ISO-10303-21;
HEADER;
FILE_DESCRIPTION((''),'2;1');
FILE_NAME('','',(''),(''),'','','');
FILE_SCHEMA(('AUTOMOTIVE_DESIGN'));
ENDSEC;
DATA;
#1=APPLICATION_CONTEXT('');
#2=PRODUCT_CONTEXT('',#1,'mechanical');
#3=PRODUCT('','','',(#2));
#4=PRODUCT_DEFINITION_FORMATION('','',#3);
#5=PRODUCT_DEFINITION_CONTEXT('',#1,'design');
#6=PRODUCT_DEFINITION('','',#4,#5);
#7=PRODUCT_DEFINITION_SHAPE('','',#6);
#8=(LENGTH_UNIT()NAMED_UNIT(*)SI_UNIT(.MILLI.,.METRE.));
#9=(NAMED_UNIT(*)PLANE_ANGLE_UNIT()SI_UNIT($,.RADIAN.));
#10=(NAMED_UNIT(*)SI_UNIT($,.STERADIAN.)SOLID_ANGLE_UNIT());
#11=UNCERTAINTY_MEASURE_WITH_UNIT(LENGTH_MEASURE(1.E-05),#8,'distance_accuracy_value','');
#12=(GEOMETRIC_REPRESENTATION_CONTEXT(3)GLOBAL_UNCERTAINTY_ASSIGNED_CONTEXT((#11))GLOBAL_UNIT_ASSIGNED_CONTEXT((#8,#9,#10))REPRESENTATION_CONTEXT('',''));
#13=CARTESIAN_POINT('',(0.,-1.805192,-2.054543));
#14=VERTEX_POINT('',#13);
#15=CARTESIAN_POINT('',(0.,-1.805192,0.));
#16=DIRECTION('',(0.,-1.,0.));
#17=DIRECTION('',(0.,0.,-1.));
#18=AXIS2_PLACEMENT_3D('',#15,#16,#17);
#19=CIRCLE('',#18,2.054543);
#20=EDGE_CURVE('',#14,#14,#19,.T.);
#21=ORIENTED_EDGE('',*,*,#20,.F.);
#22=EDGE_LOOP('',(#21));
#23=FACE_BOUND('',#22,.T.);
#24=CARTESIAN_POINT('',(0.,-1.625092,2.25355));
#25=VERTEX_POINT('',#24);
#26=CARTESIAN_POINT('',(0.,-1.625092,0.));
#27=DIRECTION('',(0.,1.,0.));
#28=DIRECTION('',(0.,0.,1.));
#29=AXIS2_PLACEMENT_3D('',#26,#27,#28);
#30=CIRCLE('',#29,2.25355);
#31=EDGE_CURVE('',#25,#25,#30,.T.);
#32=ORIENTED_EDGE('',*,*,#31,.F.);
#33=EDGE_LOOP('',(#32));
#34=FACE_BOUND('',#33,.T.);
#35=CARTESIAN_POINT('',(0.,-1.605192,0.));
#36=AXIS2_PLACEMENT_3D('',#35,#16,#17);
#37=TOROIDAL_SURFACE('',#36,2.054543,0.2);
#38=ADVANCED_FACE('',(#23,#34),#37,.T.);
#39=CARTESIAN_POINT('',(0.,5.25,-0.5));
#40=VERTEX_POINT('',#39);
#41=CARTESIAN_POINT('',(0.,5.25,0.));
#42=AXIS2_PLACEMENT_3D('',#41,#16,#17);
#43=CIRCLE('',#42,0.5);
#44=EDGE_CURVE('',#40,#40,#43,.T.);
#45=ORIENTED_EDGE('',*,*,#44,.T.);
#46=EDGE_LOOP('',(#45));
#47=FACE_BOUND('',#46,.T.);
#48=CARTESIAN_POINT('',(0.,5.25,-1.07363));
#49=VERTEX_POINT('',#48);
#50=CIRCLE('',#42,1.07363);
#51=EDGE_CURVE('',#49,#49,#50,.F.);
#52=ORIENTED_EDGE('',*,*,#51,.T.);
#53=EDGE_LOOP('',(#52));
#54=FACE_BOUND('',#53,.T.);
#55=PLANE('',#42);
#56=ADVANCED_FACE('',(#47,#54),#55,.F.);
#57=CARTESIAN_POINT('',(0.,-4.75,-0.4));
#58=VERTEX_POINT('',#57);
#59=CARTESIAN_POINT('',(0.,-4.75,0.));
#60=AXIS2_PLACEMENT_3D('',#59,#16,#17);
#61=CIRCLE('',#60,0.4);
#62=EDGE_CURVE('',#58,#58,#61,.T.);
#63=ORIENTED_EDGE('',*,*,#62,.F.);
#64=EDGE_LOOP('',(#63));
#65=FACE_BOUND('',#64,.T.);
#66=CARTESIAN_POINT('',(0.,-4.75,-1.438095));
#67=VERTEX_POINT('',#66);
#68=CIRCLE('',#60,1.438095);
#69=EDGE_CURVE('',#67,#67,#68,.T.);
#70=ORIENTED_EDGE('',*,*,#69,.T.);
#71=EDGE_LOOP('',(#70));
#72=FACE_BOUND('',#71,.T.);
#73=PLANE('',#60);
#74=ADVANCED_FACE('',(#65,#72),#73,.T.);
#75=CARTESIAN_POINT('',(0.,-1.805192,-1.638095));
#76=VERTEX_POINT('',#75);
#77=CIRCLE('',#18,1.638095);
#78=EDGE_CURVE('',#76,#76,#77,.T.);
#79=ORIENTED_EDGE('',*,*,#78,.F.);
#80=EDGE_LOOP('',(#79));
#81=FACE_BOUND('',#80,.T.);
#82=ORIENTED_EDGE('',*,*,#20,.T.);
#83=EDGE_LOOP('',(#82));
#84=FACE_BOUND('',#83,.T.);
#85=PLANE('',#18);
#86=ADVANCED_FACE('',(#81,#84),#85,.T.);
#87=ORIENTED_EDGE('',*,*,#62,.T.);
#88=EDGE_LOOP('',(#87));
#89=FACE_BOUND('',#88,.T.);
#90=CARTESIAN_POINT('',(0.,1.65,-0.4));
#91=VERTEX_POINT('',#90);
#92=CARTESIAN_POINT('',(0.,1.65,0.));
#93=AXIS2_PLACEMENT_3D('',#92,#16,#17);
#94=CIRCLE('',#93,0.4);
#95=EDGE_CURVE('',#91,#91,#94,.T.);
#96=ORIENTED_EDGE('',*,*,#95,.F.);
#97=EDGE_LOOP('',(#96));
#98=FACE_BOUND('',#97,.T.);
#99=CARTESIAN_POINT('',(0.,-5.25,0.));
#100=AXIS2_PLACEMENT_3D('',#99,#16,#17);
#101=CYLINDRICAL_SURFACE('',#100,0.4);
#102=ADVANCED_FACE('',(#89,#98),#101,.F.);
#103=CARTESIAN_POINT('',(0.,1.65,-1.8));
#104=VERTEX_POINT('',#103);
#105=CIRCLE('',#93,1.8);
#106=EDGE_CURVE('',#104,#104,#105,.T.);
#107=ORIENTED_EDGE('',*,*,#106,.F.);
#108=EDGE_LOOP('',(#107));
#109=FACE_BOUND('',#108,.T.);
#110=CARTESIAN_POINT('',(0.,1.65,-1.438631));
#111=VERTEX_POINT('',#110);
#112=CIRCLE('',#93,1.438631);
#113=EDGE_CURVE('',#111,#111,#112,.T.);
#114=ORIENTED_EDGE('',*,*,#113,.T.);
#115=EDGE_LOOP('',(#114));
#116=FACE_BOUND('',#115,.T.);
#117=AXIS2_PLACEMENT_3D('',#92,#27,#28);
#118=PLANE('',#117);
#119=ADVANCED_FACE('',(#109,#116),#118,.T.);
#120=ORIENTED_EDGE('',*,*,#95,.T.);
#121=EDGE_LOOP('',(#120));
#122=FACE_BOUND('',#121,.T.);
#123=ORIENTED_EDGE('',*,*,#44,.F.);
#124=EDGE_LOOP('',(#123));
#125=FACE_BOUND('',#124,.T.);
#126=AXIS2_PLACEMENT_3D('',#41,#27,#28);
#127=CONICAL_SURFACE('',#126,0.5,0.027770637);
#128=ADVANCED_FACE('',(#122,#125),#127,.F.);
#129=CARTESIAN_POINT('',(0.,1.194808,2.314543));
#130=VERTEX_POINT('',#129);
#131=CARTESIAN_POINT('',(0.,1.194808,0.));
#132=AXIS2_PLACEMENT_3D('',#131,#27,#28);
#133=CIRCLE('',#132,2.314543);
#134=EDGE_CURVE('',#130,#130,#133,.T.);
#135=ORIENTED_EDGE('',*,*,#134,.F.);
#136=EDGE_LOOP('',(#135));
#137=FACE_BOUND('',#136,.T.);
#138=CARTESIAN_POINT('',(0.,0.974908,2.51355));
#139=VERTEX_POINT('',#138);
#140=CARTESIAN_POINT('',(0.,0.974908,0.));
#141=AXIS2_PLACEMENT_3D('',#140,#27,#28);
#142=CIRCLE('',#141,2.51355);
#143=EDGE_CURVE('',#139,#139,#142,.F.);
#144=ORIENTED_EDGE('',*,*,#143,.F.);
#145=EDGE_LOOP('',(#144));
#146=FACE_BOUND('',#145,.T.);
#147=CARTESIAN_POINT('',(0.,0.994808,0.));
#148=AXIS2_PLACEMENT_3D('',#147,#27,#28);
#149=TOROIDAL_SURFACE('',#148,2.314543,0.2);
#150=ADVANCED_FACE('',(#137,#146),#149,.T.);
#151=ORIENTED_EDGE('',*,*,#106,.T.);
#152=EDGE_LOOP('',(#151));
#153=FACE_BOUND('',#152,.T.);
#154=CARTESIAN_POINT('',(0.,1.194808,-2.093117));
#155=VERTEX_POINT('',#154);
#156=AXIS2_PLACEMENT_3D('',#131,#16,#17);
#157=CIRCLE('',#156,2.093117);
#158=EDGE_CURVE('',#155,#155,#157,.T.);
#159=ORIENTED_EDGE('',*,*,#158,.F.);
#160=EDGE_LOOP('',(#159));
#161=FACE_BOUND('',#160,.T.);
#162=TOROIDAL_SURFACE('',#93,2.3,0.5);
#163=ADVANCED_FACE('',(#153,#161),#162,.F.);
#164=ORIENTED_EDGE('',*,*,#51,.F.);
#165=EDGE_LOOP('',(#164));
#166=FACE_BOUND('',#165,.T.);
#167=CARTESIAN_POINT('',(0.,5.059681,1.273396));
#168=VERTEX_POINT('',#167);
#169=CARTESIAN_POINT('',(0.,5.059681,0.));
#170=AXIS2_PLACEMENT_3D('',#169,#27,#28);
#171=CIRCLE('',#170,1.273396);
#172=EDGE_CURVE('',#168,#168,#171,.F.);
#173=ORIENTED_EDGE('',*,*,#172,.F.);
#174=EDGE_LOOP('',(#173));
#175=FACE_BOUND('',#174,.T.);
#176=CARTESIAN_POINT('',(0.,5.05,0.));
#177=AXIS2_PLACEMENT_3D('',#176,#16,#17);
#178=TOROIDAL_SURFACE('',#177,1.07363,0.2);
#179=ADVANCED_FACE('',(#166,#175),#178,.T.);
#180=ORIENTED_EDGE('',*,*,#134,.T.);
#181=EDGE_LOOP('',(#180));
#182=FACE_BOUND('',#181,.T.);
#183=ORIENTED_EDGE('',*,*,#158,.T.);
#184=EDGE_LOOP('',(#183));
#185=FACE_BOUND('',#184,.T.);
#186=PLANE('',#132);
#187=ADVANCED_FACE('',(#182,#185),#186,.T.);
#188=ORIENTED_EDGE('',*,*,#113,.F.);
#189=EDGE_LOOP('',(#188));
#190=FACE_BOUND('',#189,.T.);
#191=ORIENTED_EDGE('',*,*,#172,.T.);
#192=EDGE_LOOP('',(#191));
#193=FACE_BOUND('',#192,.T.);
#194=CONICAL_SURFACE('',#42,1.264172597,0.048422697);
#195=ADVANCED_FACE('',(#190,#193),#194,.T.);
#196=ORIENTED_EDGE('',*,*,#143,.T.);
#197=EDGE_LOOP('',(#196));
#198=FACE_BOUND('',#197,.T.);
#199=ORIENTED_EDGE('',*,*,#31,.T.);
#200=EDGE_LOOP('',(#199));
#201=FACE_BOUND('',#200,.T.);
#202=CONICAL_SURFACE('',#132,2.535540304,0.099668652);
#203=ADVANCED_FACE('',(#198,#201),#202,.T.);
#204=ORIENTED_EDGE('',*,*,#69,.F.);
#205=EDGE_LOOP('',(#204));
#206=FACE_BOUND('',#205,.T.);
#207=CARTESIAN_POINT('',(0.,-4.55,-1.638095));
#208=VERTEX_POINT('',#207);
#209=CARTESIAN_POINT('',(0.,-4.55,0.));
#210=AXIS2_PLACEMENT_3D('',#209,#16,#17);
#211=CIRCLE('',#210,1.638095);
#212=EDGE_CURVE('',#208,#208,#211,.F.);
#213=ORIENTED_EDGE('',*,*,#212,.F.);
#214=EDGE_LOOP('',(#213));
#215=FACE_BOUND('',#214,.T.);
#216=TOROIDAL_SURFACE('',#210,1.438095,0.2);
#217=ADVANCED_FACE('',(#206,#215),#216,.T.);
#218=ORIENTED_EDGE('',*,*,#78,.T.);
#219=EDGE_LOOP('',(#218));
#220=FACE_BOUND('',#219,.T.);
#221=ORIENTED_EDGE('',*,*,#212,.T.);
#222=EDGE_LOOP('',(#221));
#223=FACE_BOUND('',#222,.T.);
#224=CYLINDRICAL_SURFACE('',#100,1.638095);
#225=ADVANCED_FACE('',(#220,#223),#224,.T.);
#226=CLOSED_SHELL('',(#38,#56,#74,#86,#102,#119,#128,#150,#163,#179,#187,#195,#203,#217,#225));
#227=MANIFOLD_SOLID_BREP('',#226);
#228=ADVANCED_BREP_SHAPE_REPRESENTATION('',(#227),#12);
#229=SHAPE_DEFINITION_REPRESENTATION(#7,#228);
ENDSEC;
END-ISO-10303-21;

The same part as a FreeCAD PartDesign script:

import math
import FreeCAD as App
import Part
import Sketcher
from FreeCAD import Vector
Q = App.Units.Quantity


def edges_at(feature, points):
    """Names of the edges that pass closest to the given points."""
    edges = feature.Shape.Edges
    near = lambda p: min(range(len(edges)), key=lambda i: edges[i].distToShape(Part.Vertex(*p))[0])
    return sorted({f"Edge{near(p) + 1}" for p in points})

doc = App.newDocument("Part")
body = doc.addObject("PartDesign::Body", "Body")

sketch1 = body.newObject("Sketcher::SketchObject", "Sketch")
sketch1.AttachmentSupport = (doc.getObject("XY_Plane"), [""])
sketch1.MapMode = "FlatFace"
sketch1.addGeometry([
    Part.LineSegment(Vector(-1.64, -4.75, 0), Vector(-0.4, -4.75, 0)),
    Part.LineSegment(Vector(-0.4, -4.75, 0), Vector(-0.4, 1.65, 0)),
    Part.LineSegment(Vector(-0.4, 1.65, 0), Vector(-0.5, 5.25, 0)),
    Part.LineSegment(Vector(-0.5, 5.25, 0), Vector(-1.26, 5.25, 0)),
    Part.LineSegment(Vector(-1.26, 5.25, 0), Vector(-1.44, 1.65, 0)),
    Part.LineSegment(Vector(-1.44, 1.65, 0), Vector(-1.8, 1.65, 0)),
    Part.ArcOfCircle(Part.Circle(Vector(-2.3, 1.65, 0), Vector(0, 0, 1), 0.5), math.radians(-66), math.radians(0)),
    Part.LineSegment(Vector(-2.09, 1.19, 0), Vector(-2.54, 1.19, 0)),
    Part.LineSegment(Vector(-2.54, 1.19, 0), Vector(-2.24, -1.81, 0)),
    Part.LineSegment(Vector(-2.24, -1.81, 0), Vector(-1.64, -1.81, 0)),
    Part.LineSegment(Vector(-1.64, -1.81, 0), Vector(-1.64, -4.75, 0)),
], False)
sketch1.addConstraint([
    Sketcher.Constraint("Coincident", 0, 2, 1, 1),
    Sketcher.Constraint("Coincident", 1, 2, 2, 1),
    Sketcher.Constraint("Coincident", 2, 2, 3, 1),
    Sketcher.Constraint("Coincident", 3, 2, 4, 1),
    Sketcher.Constraint("Coincident", 4, 2, 5, 1),
    Sketcher.Constraint("Coincident", 5, 2, 6, 2),
    Sketcher.Constraint("Coincident", 6, 1, 7, 1),
    Sketcher.Constraint("Coincident", 7, 2, 8, 1),
    Sketcher.Constraint("Coincident", 8, 2, 9, 1),
    Sketcher.Constraint("Coincident", 9, 2, 10, 1),
    Sketcher.Constraint("Coincident", 10, 2, 0, 1),
    Sketcher.Constraint("Horizontal", 0),
    Sketcher.Constraint("Vertical", 1),
    Sketcher.Constraint("Horizontal", 3),
    Sketcher.Constraint("Horizontal", 5),
    Sketcher.Constraint("Horizontal", 7),
    Sketcher.Constraint("Horizontal", 9),
    Sketcher.Constraint("Vertical", 10),
    Sketcher.Constraint("Horizontal", 6, 3, 1, 2),
    Sketcher.Constraint("Horizontal", 1, 2, 4, 2),
    Sketcher.Constraint("Radius", 6, Q("0.5 mm")),
    Sketcher.Constraint("DistanceY", 1, 1, 1, 2, Q("6.4 mm")),
    Sketcher.Constraint("DistanceY", 0, 2, 2, 2, Q("10 mm")),
    Sketcher.Constraint("DistanceY", 8, 2, 6, 1, Q("3 mm")),
    Sketcher.Constraint("DistanceX", 6, 3, -1, 1, Q("2.3 mm")),
    Sketcher.Constraint("DistanceX", 0, 2, -1, 1, Q("0.4 mm")),
    Sketcher.Constraint("DistanceX", 2, 2, -1, 1, Q("0.5 mm")),
    Sketcher.Constraint("DistanceX", 7, 2, 8, 2, Q("0.3 mm")),
    Sketcher.Constraint("DistanceY", -1, 1, 6, 3, Q("1.65 mm")),
    Sketcher.Constraint("DistanceX", 5, 2, 5, 1, Q("0.361369 mm")),
    Sketcher.Constraint("DistanceY", 10, 2, 10, 1, Q("2.944808 mm")),
    Sketcher.Constraint("DistanceX", 0, 1, 0, 2, Q("1.238095 mm")),
    Sketcher.Constraint("DistanceX", 3, 2, 3, 1, Q("0.764173 mm")),
    Sketcher.Constraint("DistanceX", 7, 2, 7, 1, Q("0.442423 mm")),
])
revolution = body.newObject("PartDesign::Revolution", "Revolution")
revolution.Profile = sketch1
revolution.ReferenceAxis = (sketch1, ["V_Axis"])
revolution.Angle = 360
doc.recompute()

fillet = body.newObject("PartDesign::Fillet", "Fillet")
fillet.Base = (revolution, edges_at(revolution, [(0, 5.25, 1.264)]))
fillet.Radius = 0.2
doc.recompute()

fillet2 = body.newObject("PartDesign::Fillet", "Fillet001")
fillet2.Base = (fillet, edges_at(fillet, [(0, -4.75, 1.638)]))
fillet2.Radius = 0.2
doc.recompute()

fillet3 = body.newObject("PartDesign::Fillet", "Fillet002")
fillet3.Base = (fillet2, edges_at(fillet2, [(0, -1.805, 2.236), (0, 1.195, 2.536)]))
fillet3.Radius = 0.2

doc.recompute()
